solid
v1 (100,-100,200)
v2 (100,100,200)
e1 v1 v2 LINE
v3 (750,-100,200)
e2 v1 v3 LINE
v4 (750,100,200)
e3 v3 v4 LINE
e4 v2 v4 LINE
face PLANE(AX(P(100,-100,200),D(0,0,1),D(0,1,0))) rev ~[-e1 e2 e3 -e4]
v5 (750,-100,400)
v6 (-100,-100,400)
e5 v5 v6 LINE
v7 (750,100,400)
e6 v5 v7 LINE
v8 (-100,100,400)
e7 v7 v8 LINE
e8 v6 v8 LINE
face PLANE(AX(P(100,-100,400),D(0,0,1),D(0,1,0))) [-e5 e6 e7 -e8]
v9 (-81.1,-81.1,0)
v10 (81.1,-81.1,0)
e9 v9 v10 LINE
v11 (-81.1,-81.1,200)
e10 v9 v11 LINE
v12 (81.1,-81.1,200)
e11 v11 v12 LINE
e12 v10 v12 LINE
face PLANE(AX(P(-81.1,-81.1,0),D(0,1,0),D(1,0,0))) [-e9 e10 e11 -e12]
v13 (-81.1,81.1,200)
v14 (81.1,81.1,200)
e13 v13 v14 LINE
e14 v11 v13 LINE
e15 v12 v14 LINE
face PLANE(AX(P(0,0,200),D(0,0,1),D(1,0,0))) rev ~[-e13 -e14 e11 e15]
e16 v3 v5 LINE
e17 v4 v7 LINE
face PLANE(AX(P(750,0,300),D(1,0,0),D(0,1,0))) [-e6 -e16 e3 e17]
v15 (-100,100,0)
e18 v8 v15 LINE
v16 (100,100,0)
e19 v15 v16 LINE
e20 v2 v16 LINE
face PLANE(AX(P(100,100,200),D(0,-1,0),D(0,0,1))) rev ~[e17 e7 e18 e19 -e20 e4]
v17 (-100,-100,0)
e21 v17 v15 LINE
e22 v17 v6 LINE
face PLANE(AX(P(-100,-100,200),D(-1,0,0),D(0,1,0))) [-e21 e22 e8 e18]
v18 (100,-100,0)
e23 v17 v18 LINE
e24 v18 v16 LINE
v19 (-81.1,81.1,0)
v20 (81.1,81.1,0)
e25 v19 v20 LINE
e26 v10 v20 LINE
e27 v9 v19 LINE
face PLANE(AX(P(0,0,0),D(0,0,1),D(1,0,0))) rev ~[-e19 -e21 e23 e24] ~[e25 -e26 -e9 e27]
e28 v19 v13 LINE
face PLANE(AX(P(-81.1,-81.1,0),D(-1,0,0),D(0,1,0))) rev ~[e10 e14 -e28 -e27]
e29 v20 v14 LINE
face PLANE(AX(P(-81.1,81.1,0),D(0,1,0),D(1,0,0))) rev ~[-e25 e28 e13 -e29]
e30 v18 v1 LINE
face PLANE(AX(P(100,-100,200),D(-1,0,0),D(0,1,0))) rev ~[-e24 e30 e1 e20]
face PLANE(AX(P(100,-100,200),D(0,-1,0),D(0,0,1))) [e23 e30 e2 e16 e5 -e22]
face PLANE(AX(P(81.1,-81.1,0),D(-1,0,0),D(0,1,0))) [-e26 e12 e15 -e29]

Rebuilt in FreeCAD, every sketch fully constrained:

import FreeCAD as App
import Part
import Sketcher

doc = App.newDocument("Part")
body = doc.addObject("PartDesign::Body", "Body")

sketch1 = body.newObject("Sketcher::SketchObject", "Sketch")
sketch1.AttachmentSupport = (doc.getObject("XY_Plane"), [""])
sketch1.MapMode = "FlatFace"
sketch1.addGeometry([
    Part.LineSegment(App.Vector(-100, 100, 0), App.Vector(-100, -100, 0)),
    Part.LineSegment(App.Vector(-100, -100, 0), App.Vector(100, -100, 0)),
    Part.LineSegment(App.Vector(100, -100, 0), App.Vector(100, 100, 0)),
    Part.LineSegment(App.Vector(100, 100, 0), App.Vector(-100, 100, 0)),
    Part.LineSegment(App.Vector(81, -81, 0), App.Vector(-81, -81, 0)),
    Part.LineSegment(App.Vector(-81, -81, 0), App.Vector(-81, 81, 0)),
    Part.LineSegment(App.Vector(-81, 81, 0), App.Vector(81, 81, 0)),
    Part.LineSegment(App.Vector(81, 81, 0), App.Vector(81, -81, 0)),
], False)
sketch1.addConstraint([
    Sketcher.Constraint("Coincident", 0, 2, 1, 1),
    Sketcher.Constraint("Coincident", 1, 2, 2, 1),
    Sketcher.Constraint("Coincident", 2, 2, 3, 1),
    Sketcher.Constraint("Coincident", 3, 2, 0, 1),
    Sketcher.Constraint("Coincident", 4, 2, 5, 1),
    Sketcher.Constraint("Coincident", 5, 2, 6, 1),
    Sketcher.Constraint("Coincident", 6, 2, 7, 1),
    Sketcher.Constraint("Coincident", 7, 2, 4, 1),
    Sketcher.Constraint("Vertical", 0),
    Sketcher.Constraint("Horizontal", 1),
    Sketcher.Constraint("Vertical", 2),
    Sketcher.Constraint("Horizontal", 3),
    Sketcher.Constraint("Horizontal", 4),
    Sketcher.Constraint("Vertical", 5),
    Sketcher.Constraint("Horizontal", 6),
    Sketcher.Constraint("Vertical", 7),
    Sketcher.Constraint("Symmetric", 0, 2, 2, 2, -1, 1),
    Sketcher.Constraint("Symmetric", 4, 2, 6, 2, -1, 1),
    Sketcher.Constraint("Equal", 3, 0),
    Sketcher.Constraint("Equal", 6, 5),
    Sketcher.Constraint("DistanceX", 1, 1, 1, 2, 200.0),
    Sketcher.Constraint("DistanceX", 4, 2, 4, 1, 162.2),
])
pad1 = body.newObject("PartDesign::Pad", "Pad")
pad1.Profile = sketch1
pad1.Length = 200

sketch2 = body.newObject("Sketcher::SketchObject", "Sketch001")
sketch2.AttachmentSupport = (doc.getObject("XY_Plane"), [""])
sketch2.MapMode = "FlatFace"
sketch2.AttachmentOffset = App.Placement(App.Vector(0, 0, 200), App.Rotation())
sketch2.addGeometry([
    Part.LineSegment(App.Vector(-100, 100, 0), App.Vector(-100, -100, 0)),
    Part.LineSegment(App.Vector(-100, -100, 0), App.Vector(100, -100, 0)),
    Part.LineSegment(App.Vector(100, -100, 0), App.Vector(100, 100, 0)),
    Part.LineSegment(App.Vector(100, 100, 0), App.Vector(-100, 100, 0)),
], False)
sketch2.addConstraint([
    Sketcher.Constraint("Coincident", 0, 2, 1, 1),
    Sketcher.Constraint("Coincident", 1, 2, 2, 1),
    Sketcher.Constraint("Coincident", 2, 2, 3, 1),
    Sketcher.Constraint("Coincident", 3, 2, 0, 1),
    Sketcher.Constraint("Vertical", 0),
    Sketcher.Constraint("Horizontal", 1),
    Sketcher.Constraint("Vertical", 2),
    Sketcher.Constraint("Horizontal", 3),
    Sketcher.Constraint("Symmetric", 0, 2, 2, 2, -1, 1),
    Sketcher.Constraint("Equal", 3, 0),
    Sketcher.Constraint("DistanceX", 1, 1, 1, 2, 200.0),
])
pad2 = body.newObject("PartDesign::Pad", "Pad001")
pad2.Profile = sketch2
pad2.Length = 200

sketch3 = body.newObject("Sketcher::SketchObject", "Sketch002")
sketch3.AttachmentSupport = (doc.getObject("YZ_Plane"), [""])
sketch3.MapMode = "FlatFace"
sketch3.AttachmentOffset = App.Placement(App.Vector(0, 0, 100), App.Rotation())
sketch3.addGeometry([
    Part.LineSegment(App.Vector(-100, 400, 0), App.Vector(-100, 200, 0)),
    Part.LineSegment(App.Vector(-100, 200, 0), App.Vector(100, 200, 0)),
    Part.LineSegment(App.Vector(100, 200, 0), App.Vector(100, 400, 0)),
    Part.LineSegment(App.Vector(100, 400, 0), App.Vector(-100, 400, 0)),
], False)
sketch3.addConstraint([
    Sketcher.Constraint("Coincident", 0, 2, 1, 1),
    Sketcher.Constraint("Coincident", 1, 2, 2, 1),
    Sketcher.Constraint("Coincident", 2, 2, 3, 1),
    Sketcher.Constraint("Coincident", 3, 2, 0, 1),
    Sketcher.Constraint("Vertical", 0),
    Sketcher.Constraint("Horizontal", 1),
    Sketcher.Constraint("Vertical", 2),
    Sketcher.Constraint("Horizontal", 3),
    Sketcher.Constraint("Equal", 3, 0),
    Sketcher.Constraint("DistanceX", 1, 1, 1, 2, 200.0),
    Sketcher.Constraint("DistanceX", 0, 2, -1, 1, 100.0),
    Sketcher.Constraint("DistanceY", -1, 1, 0, 2, 200.0),
])
pad3 = body.newObject("PartDesign::Pad", "Pad002")
pad3.Profile = sketch3
pad3.Length = 650

doc.recompute()
